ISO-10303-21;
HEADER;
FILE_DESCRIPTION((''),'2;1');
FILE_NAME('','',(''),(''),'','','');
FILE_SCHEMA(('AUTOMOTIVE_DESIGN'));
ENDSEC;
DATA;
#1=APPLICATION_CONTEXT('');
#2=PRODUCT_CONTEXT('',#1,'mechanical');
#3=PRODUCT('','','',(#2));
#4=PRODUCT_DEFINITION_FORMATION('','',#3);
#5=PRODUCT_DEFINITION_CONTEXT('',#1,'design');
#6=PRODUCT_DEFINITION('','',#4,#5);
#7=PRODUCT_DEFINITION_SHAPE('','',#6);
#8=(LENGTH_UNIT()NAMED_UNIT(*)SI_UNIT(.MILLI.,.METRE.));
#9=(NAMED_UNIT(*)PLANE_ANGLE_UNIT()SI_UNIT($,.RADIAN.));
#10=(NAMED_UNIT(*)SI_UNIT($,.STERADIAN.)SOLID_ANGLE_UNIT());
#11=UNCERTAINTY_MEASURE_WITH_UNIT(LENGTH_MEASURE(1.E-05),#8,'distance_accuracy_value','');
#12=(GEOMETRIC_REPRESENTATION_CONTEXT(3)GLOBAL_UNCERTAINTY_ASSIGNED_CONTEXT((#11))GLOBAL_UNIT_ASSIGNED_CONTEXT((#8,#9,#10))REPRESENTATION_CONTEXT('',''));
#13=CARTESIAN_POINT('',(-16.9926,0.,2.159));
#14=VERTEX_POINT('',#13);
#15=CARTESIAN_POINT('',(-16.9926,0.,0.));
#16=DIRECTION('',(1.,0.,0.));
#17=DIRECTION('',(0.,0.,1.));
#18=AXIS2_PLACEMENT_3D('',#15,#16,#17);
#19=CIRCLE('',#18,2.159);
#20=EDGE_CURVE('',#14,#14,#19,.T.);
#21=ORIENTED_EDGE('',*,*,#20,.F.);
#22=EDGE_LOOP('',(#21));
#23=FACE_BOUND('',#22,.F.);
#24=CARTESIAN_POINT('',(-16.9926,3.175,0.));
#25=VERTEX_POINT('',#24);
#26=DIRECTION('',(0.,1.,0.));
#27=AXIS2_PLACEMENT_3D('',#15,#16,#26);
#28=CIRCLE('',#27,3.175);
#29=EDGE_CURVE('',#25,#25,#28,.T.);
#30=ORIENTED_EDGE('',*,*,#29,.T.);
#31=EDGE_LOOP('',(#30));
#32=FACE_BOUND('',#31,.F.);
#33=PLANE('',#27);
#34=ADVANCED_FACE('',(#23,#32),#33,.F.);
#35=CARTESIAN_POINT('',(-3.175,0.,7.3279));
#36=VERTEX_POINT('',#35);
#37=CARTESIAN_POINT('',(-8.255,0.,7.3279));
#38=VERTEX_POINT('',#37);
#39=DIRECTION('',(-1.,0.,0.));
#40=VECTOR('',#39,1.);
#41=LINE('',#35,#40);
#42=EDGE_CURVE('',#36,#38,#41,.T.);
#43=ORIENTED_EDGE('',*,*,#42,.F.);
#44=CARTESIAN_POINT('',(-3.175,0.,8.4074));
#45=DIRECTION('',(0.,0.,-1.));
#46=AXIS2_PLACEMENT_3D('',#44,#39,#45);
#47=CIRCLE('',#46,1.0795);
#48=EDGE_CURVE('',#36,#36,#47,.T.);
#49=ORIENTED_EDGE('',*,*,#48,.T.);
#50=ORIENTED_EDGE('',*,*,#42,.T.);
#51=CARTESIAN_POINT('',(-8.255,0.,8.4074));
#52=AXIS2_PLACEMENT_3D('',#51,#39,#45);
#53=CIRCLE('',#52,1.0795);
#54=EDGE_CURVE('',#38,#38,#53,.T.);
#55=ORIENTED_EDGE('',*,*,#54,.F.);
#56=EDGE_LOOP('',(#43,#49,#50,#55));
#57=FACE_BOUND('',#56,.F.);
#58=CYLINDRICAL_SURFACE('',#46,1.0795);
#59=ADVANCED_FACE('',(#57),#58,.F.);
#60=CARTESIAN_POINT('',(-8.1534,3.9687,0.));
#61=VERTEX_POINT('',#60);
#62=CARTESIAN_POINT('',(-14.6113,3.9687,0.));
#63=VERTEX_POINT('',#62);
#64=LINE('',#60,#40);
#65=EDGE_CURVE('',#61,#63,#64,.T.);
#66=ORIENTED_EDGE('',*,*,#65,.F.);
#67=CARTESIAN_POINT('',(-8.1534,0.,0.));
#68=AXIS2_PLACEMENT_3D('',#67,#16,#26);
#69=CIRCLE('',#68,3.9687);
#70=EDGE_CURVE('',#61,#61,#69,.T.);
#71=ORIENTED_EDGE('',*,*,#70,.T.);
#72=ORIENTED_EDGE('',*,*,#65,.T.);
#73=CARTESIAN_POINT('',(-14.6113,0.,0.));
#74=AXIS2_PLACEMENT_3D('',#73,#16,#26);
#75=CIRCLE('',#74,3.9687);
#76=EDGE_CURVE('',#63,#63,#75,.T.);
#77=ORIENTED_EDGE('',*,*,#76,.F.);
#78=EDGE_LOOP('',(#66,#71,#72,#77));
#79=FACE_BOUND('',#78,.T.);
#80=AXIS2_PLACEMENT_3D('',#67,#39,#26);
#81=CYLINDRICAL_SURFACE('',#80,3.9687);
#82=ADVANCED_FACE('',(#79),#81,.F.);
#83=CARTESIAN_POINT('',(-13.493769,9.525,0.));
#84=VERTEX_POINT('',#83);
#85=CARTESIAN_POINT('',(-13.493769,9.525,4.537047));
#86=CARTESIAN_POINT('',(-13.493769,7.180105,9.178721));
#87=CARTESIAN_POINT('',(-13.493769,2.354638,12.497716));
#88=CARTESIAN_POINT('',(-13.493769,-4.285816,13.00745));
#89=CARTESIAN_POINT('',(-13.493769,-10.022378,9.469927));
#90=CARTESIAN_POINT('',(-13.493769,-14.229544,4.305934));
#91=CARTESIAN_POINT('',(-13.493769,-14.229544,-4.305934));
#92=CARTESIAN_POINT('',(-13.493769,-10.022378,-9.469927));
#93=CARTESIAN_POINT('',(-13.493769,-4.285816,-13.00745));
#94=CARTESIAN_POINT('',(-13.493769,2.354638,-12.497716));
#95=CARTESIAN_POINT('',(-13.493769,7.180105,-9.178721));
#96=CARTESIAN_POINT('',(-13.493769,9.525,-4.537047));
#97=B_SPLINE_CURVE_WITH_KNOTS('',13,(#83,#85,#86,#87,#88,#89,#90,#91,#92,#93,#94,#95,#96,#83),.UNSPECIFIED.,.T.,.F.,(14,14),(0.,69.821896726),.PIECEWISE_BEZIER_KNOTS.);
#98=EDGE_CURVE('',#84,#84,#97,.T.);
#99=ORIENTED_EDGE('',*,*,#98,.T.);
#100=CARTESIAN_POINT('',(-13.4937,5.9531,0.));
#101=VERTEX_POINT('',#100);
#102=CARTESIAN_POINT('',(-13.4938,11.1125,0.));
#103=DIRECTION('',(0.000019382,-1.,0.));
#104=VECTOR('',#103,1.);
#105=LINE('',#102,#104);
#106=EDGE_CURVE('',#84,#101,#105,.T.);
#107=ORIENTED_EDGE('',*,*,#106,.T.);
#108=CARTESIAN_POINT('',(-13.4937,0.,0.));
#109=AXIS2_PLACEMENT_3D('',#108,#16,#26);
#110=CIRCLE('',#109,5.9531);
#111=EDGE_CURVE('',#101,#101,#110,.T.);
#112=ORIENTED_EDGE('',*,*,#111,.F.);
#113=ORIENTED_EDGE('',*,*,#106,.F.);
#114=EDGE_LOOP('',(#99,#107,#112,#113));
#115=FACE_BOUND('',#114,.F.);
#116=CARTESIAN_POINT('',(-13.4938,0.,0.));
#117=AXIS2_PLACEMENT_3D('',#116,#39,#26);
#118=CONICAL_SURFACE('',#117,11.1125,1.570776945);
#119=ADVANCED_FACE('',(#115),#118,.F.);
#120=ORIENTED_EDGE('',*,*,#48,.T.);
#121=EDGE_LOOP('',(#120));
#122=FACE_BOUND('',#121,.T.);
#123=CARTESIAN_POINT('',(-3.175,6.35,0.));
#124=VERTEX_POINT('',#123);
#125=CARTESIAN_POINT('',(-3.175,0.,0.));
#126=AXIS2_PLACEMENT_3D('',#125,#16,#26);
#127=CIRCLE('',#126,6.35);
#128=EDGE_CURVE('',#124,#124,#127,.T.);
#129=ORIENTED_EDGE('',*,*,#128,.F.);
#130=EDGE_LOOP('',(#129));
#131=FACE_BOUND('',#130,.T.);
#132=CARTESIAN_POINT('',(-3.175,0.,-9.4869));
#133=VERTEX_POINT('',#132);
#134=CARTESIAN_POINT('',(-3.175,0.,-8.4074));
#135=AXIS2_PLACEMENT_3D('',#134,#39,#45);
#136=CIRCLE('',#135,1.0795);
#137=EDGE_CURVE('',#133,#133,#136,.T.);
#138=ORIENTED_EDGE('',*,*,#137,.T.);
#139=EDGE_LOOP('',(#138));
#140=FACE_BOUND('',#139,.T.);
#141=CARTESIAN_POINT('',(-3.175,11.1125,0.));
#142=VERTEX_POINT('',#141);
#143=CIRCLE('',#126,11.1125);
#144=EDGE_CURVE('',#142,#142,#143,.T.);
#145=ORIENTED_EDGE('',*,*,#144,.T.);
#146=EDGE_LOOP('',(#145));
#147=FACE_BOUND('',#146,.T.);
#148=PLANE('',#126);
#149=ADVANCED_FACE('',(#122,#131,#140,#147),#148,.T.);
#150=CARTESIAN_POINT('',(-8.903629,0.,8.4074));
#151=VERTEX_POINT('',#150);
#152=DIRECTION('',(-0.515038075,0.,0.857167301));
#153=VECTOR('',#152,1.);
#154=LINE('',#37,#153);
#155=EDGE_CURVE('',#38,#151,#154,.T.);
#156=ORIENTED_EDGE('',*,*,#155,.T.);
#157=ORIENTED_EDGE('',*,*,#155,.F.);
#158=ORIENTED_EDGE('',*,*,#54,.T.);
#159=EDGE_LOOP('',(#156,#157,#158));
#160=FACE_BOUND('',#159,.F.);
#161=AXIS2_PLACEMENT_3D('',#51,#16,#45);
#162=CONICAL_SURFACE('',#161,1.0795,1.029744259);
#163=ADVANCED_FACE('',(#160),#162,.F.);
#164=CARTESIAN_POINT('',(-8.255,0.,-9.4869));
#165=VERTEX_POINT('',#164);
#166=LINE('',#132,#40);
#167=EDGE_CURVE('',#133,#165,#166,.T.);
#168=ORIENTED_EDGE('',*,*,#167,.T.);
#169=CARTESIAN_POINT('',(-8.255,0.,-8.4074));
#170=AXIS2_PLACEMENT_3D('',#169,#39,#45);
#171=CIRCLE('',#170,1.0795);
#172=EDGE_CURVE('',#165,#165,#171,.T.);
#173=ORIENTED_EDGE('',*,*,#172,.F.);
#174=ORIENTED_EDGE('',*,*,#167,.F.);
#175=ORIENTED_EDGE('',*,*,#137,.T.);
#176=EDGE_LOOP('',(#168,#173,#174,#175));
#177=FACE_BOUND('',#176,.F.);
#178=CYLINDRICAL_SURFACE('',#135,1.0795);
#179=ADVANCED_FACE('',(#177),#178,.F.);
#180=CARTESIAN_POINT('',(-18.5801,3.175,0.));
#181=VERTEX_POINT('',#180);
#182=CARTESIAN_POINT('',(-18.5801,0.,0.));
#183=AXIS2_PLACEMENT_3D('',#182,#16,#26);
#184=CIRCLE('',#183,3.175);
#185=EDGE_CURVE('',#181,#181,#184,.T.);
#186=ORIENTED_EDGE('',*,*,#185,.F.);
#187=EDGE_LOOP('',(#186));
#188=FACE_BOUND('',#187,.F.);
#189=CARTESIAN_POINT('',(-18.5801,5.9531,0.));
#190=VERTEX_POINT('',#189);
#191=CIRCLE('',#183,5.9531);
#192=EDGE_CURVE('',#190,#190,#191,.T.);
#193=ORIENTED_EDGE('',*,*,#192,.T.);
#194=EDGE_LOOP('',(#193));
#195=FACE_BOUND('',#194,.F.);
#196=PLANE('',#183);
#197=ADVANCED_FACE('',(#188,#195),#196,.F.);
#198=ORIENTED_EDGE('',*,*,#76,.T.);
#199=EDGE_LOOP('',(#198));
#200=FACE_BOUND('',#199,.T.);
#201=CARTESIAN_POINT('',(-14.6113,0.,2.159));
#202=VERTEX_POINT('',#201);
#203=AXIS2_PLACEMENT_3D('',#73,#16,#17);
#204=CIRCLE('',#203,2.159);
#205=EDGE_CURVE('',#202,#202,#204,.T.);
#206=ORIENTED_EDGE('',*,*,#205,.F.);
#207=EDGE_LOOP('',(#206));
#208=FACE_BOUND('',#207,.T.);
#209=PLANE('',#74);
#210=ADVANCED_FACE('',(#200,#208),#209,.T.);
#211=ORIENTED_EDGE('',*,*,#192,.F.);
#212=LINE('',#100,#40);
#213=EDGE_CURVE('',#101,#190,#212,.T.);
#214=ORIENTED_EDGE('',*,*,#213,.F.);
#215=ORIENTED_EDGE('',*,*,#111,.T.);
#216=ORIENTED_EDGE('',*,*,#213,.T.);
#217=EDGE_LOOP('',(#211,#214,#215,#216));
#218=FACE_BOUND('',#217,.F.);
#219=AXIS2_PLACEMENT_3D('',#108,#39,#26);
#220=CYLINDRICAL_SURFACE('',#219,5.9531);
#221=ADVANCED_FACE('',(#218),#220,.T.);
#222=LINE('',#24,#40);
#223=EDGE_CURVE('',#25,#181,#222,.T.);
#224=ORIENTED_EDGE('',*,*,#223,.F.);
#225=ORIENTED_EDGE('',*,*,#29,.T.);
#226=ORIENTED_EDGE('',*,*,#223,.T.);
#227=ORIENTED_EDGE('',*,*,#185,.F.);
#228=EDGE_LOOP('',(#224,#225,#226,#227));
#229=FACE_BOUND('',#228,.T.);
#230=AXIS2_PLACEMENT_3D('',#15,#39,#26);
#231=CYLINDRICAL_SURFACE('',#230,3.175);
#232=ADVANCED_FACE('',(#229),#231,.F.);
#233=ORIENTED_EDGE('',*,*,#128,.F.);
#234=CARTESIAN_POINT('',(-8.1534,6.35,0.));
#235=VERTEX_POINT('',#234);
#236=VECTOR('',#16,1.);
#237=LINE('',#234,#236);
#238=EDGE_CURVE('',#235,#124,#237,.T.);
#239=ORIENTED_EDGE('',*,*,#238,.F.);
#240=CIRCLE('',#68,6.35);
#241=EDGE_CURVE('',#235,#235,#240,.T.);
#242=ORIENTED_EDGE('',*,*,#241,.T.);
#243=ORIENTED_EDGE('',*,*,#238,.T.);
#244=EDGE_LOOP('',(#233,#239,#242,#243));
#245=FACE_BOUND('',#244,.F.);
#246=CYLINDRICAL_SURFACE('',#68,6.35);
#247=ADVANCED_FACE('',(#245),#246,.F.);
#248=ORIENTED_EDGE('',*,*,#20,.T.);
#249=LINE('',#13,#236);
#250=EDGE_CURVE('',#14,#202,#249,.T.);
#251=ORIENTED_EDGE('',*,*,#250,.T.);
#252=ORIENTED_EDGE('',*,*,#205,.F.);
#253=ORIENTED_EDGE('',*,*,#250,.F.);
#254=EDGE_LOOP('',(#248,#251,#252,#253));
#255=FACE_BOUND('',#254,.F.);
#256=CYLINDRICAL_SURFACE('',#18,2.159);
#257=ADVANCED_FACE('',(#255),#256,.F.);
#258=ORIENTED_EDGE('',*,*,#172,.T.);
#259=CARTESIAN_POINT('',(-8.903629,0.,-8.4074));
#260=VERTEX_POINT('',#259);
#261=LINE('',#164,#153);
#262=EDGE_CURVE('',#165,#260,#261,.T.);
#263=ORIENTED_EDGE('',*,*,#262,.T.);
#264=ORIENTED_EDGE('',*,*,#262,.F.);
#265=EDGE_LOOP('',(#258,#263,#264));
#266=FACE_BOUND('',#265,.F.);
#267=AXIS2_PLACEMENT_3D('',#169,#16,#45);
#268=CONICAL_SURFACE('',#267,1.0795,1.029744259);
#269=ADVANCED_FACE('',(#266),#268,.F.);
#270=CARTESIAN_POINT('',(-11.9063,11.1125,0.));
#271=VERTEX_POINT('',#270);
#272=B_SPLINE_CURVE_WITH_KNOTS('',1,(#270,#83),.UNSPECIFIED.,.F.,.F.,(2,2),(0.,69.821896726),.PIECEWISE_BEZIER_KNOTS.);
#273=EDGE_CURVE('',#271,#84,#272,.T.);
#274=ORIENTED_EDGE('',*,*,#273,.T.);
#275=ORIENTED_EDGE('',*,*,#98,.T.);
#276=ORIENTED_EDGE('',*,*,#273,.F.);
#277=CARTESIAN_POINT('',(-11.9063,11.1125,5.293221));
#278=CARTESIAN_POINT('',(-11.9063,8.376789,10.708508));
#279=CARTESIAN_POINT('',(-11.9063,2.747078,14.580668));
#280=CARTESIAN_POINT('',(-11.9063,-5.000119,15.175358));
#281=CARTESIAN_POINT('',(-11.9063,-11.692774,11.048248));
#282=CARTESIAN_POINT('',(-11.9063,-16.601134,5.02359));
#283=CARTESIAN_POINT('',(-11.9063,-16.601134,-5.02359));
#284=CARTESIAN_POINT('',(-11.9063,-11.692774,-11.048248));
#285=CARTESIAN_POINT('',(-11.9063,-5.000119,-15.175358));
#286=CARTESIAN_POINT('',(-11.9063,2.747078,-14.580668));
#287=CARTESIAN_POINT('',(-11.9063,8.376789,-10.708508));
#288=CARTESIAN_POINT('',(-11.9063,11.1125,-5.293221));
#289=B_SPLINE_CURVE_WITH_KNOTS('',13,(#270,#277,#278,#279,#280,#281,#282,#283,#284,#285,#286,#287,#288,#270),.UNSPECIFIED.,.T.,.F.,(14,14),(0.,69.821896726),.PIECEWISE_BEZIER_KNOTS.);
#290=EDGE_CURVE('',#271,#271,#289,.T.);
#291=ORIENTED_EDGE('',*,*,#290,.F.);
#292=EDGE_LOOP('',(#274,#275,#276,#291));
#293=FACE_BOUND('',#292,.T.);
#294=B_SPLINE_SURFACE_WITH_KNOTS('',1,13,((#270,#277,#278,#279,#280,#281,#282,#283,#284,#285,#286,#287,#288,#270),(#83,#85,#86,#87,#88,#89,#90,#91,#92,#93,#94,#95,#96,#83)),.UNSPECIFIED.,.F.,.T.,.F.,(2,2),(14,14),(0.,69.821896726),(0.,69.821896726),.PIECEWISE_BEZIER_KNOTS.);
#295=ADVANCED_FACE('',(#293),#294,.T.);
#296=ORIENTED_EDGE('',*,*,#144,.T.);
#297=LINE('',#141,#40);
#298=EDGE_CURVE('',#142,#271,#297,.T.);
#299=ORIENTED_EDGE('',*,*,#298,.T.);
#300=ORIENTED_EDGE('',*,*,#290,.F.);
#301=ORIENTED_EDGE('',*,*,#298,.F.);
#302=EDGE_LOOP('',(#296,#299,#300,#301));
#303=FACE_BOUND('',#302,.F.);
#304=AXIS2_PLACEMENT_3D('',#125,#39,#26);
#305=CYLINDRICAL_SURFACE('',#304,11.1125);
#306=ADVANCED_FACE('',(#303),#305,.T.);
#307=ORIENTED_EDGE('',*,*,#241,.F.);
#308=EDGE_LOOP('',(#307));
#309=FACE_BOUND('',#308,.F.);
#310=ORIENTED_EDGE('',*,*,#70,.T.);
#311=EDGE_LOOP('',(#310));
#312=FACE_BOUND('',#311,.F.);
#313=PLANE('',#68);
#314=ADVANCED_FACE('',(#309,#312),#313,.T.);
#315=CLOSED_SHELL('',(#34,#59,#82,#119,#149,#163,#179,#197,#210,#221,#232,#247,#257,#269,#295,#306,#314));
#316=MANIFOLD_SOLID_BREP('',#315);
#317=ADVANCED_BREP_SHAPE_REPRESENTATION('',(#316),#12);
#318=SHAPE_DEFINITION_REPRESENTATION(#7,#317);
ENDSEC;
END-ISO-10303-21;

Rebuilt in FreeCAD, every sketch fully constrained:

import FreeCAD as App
import Part
import Sketcher
from FreeCAD import Vector
Q = App.Units.Quantity


def edges_at(feature, points):
    """Names of the edges that pass closest to the given points."""
    edges = feature.Shape.Edges
    near = lambda p: min(range(len(edges)), key=lambda i: edges[i].distToShape(Part.Vertex(*p))[0])
    return sorted({f"Edge{near(p) + 1}" for p in points})


def add_polygon(sketch, points):
    """Adds a closed chain of lines whose ends are joined by coincident constraints."""
    first, n = sketch.GeometryCount, len(points)
    for a, b in zip(points, points[1:] + points[:1]):
        sketch.addGeometry(Part.LineSegment(App.Vector(*a, 0), App.Vector(*b, 0)), False)
    for i in range(n):
        sketch.addConstraint(Sketcher.Constraint("Coincident", first + i, 2, first + (i + 1) % n, 1))

doc = App.newDocument("Part")
body = doc.addObject("PartDesign::Body", "Body")

sketch1 = body.newObject("Sketcher::SketchObject", "Sketch")
sketch1.AttachmentSupport = (doc.getObject("XY_Plane"), [""])
sketch1.MapMode = "FlatFace"
add_polygon(sketch1, [(-3.2, 6.3), (-3.2, 11.1), (-13.5, 11.1), (-13.5, 6), (-18.6, 6), (-18.6, 3.2), (-17, 3.2), (-17, 0), (-14.6, 0), (-14.6, 4), (-8.2, 4), (-8.2, 6.3)])
sketch1.addConstraint([
    Sketcher.Constraint("Vertical", 0),
    Sketcher.Constraint("Horizontal", 1),
    Sketcher.Constraint("Vertical", 2),
    Sketcher.Constraint("Horizontal", 3),
    Sketcher.Constraint("Vertical", 4),
    Sketcher.Constraint("Horizontal", 5),
    Sketcher.Constraint("Vertical", 6),
    Sketcher.Constraint("Horizontal", 7),
    Sketcher.Constraint("Vertical", 8),
    Sketcher.Constraint("Horizontal", 9),
    Sketcher.Constraint("Vertical", 10),
    Sketcher.Constraint("Horizontal", 11),
    Sketcher.Constraint("PointOnObject", 6, 2, -1),
    Sketcher.Constraint("Equal", 7, 10),
    Sketcher.Constraint("DistanceX", 1, 2, 1, 1, Q("0.406252 in")),
    Sketcher.Constraint("DistanceX", 5, 1, 5, 2, Q("0.0625 in")),
    Sketcher.Constraint("DistanceX", 7, 1, 7, 2, Q("0.093752 in")),
    Sketcher.Constraint("DistanceX", 11, 1, 11, 2, Q("0.196 in")),
    Sketcher.Constraint("DistanceY", 0, 1, 0, 2, Q("0.1875 in")),
    Sketcher.Constraint("DistanceY", 2, 2, 2, 1, Q("0.203126 in")),
    Sketcher.Constraint("DistanceY", 4, 2, 4, 1, Q("0.1093701 in")),
    Sketcher.Constraint("DistanceY", 6, 2, 6, 1, Q("0.125 in")),
    Sketcher.Constraint("DistanceX", 0, 2, -1, 1, Q("0.125 in")),
    Sketcher.Constraint("DistanceX", 5, 2, -1, 1, Q("0.669 in")),
])
revolution = body.newObject("PartDesign::Revolution", "Revolution")
revolution.Profile = sketch1
revolution.ReferenceAxis = (sketch1, ["H_Axis"])
revolution.Angle = 360

sketch2 = body.newObject("Sketcher::SketchObject", "Sketch001")
sketch2.AttachmentSupport = (doc.getObject("YZ_Plane"), [""])
sketch2.MapMode = "FlatFace"
sketch2.AttachmentOffset = App.Placement(Vector(0, 0, -0.669 * 25.4), App.Rotation())
sketch2.addGeometry(Part.Circle(Vector(0, 0, 0), Vector(0, 0, 1), 2.2), False)
sketch2.addConstraint([
    Sketcher.Constraint("Coincident", 0, 3, -1, 1),
    Sketcher.Constraint("Diameter", 0, Q("0.17 in")),
])
doc.recompute()
hole = body.newObject("PartDesign::Hole", "Hole")
hole.Profile = sketch2
hole.ThreadType = "None"
hole.Diameter = Q("0.17 in")
hole.DepthType = "ThroughAll"
hole.Reversed = True

sketch3 = body.newObject("Sketcher::SketchObject", "Sketch002")
sketch3.AttachmentSupport = (doc.getObject("YZ_Plane"), [""])
sketch3.MapMode = "FlatFace"
sketch3.AttachmentOffset = App.Placement(Vector(0, 0, -0.125 * 25.4), App.Rotation())
sketch3.addGeometry([
    Part.Circle(Vector(0, 8.4, 0), Vector(0, 0, 1), 1.1),
    Part.Circle(Vector(0, -8.4, 0), Vector(0, 0, 1), 1.1),
], False)
sketch3.addConstraint([
    Sketcher.Constraint("Equal", 0, 1),
    Sketcher.Constraint("Symmetric", 0, 3, 1, 3, -1, 1),
    Sketcher.Constraint("PointOnObject", 0, 3, -2),
    Sketcher.Constraint("Diameter", 0, Q("0.085 in")),
    Sketcher.Constraint("DistanceY", -1, 1, 0, 3, Q("0.331 in")),
])
doc.recompute()
hole2 = body.newObject("PartDesign::Hole", "Hole001")
hole2.Profile = sketch3
hole2.ThreadType = "None"
hole2.Diameter = Q("0.085 in")
hole2.DepthType = "Dimension"
hole2.Depth = Q("0.2 in")
hole2.DrillPoint = "Angled"
hole2.DrillPointAngle = 118
doc.recompute()

chamfer = body.newObject("PartDesign::Chamfer", "Chamfer")
chamfer.Base = (hole2, edges_at(hole2, [(-13.494, -11.113, 0)]))
chamfer.Size = Q("0.0625 in")

doc.recompute()
